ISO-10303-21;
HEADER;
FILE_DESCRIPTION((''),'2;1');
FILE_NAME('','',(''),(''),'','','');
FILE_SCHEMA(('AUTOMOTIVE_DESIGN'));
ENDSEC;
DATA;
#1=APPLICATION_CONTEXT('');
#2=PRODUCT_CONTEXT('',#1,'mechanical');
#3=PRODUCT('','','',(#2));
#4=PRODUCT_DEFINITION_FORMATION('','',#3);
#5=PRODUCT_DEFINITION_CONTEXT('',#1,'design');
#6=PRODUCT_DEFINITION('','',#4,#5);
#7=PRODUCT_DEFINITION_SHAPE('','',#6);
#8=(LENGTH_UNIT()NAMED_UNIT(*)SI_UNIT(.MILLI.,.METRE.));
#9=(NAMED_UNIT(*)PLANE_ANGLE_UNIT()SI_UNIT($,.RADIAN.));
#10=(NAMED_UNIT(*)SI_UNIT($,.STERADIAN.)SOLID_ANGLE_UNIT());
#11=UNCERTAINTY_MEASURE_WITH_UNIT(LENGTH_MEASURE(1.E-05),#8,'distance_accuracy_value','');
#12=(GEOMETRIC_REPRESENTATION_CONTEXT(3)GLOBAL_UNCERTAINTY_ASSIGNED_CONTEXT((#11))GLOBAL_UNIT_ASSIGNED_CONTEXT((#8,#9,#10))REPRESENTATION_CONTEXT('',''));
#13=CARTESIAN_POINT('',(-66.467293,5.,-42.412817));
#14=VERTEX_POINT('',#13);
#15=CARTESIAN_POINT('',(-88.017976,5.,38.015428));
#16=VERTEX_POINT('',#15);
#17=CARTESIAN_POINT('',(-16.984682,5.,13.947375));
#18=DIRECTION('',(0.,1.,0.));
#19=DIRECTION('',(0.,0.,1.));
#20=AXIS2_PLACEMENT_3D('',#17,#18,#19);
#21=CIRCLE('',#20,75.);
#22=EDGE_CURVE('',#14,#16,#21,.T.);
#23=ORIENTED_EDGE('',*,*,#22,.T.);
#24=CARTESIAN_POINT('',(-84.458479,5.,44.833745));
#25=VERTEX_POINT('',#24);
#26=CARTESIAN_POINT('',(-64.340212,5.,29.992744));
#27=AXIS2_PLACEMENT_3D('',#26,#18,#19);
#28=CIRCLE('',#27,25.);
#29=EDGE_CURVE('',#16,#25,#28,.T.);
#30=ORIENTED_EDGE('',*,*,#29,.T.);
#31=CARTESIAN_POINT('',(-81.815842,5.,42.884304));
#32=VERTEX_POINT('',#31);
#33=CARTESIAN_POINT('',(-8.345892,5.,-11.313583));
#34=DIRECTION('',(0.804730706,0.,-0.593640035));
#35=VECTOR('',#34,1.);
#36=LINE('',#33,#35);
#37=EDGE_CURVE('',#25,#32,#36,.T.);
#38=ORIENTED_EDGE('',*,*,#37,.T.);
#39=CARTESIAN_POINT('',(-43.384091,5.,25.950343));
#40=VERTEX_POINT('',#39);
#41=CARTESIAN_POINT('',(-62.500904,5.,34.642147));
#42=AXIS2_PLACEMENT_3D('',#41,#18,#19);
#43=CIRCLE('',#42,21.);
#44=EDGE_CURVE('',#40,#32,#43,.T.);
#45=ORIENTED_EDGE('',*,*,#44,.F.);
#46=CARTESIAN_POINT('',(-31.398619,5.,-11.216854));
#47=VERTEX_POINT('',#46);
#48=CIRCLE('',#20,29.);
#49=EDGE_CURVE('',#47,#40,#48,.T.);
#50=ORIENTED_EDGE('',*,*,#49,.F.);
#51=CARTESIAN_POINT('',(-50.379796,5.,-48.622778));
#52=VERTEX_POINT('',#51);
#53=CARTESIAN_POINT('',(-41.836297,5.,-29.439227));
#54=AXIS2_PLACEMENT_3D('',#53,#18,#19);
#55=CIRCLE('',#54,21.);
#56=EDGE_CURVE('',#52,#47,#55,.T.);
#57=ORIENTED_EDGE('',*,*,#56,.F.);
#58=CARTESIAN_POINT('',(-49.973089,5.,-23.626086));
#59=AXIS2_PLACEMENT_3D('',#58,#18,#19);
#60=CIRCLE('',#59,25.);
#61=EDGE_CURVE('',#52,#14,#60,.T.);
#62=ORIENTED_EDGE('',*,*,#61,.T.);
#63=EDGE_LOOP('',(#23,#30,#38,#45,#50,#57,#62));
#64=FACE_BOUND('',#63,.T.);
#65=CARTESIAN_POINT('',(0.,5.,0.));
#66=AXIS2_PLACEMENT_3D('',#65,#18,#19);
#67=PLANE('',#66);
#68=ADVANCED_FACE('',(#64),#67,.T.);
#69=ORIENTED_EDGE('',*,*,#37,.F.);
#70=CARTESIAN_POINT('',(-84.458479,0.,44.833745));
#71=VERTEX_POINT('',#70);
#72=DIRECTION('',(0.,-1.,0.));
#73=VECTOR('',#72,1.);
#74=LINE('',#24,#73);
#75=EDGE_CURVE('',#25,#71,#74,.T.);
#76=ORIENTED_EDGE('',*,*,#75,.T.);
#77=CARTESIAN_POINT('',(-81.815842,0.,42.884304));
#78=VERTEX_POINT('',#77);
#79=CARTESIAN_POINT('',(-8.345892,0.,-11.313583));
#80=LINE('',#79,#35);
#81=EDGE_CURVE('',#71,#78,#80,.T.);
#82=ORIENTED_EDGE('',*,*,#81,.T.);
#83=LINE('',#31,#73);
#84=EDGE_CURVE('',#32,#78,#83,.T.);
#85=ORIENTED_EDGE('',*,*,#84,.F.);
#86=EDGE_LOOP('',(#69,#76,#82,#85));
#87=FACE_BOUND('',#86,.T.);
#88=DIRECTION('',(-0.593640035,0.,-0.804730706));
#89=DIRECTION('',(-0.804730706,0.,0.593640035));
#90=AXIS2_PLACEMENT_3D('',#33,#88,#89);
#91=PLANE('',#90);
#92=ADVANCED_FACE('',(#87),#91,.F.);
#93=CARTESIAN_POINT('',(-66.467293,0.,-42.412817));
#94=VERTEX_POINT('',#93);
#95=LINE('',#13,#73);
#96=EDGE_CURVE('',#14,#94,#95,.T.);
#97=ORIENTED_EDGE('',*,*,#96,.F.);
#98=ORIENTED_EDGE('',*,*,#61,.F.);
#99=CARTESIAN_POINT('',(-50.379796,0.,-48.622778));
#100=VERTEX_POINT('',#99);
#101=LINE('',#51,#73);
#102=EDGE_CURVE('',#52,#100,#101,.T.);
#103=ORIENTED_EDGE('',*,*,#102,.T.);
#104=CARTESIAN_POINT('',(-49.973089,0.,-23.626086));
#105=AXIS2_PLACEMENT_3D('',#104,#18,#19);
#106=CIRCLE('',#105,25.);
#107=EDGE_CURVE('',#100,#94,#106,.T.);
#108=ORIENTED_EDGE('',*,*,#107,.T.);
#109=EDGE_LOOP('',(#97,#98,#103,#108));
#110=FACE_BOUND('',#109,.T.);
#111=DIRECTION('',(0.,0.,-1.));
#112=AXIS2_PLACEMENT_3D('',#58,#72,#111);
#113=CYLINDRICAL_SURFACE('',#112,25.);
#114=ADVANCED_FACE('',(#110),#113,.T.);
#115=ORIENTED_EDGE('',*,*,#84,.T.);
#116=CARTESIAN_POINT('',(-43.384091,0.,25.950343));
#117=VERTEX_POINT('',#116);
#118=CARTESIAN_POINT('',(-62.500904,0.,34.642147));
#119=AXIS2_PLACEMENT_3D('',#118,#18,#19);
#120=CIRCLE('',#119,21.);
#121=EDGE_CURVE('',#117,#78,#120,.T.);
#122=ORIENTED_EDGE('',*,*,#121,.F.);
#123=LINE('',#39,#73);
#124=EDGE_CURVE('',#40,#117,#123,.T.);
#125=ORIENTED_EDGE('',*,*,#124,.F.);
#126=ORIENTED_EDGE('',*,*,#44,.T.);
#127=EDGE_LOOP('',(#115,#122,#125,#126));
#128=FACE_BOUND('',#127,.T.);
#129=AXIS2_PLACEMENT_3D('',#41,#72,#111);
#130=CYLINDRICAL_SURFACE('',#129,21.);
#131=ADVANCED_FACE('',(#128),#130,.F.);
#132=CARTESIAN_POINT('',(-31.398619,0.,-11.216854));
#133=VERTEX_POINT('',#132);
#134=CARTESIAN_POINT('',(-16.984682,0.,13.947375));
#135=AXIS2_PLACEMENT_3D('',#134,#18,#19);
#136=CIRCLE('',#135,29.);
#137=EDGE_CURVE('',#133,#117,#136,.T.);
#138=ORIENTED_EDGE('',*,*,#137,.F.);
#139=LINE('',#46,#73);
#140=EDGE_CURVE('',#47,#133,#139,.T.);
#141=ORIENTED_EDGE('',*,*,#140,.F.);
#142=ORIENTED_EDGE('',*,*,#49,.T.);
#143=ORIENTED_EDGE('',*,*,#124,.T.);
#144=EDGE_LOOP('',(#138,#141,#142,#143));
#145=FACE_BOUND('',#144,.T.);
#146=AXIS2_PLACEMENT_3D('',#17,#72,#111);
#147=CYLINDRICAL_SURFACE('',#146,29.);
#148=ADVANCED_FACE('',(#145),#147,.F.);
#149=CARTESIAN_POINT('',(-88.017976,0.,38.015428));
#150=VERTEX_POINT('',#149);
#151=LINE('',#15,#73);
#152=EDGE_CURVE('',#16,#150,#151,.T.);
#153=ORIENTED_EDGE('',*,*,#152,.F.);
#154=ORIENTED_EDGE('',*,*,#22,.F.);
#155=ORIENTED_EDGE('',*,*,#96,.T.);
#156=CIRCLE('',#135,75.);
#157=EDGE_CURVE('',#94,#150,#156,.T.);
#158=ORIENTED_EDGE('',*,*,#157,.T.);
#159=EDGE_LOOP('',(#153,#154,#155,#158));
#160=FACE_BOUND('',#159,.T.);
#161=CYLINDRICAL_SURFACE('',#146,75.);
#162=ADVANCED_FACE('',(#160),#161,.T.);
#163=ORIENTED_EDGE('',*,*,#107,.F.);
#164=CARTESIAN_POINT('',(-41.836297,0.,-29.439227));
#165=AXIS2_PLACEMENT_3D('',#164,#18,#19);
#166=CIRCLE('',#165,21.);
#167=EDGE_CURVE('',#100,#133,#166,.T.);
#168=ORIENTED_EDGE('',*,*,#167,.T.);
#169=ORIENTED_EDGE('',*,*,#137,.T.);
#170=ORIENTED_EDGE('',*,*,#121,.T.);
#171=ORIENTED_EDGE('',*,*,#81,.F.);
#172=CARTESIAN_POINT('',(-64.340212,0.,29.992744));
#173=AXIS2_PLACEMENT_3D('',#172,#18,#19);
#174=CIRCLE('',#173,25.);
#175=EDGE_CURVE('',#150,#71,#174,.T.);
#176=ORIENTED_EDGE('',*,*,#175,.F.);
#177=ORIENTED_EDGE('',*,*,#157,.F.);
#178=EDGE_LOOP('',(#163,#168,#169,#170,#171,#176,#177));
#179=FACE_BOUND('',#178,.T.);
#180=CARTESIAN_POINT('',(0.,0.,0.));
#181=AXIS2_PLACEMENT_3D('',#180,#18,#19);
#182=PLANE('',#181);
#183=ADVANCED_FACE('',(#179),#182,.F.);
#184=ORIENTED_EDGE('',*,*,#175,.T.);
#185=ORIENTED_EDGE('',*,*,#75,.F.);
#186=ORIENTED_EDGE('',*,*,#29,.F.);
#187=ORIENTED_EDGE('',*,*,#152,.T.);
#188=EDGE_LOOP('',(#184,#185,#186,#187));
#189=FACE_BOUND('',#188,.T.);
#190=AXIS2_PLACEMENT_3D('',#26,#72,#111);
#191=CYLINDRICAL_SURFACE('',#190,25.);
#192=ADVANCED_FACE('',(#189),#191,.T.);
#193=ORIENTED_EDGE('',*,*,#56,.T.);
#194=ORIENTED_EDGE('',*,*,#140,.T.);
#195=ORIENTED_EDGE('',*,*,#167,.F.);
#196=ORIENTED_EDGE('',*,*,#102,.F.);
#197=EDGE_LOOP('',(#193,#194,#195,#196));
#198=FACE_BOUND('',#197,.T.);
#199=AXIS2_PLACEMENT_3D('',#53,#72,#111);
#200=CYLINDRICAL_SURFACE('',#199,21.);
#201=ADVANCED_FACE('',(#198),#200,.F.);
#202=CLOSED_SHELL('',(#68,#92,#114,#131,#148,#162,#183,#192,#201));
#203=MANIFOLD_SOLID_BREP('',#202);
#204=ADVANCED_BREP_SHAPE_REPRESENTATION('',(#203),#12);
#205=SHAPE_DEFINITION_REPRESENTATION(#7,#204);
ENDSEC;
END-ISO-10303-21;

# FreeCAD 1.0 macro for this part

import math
import FreeCAD as App
import Part
import Sketcher

V = App.Vector

doc = App.newDocument("Part")
body = doc.addObject("PartDesign::Body", "Body")

# Sketch on XZ plane
sketch1 = body.newObject("Sketcher::SketchObject", "Sketch")
sketch1.AttachmentSupport = (doc.getObject("XZ_Plane"), [""])
sketch1.MapMode = "FlatFace"
sketch1.addGeometry([
    Part.ArcOfCircle(Part.Circle(V(-64.340212, 29.992744, 0), V(0, 0, 1), 25), math.radians(143.584256), math.radians(161.282192)),  # 0
    Part.LineSegment(V(-84.458479, 44.833745, 0), V(-81.815842, 42.884304, 0)),  # 1
    Part.ArcOfCircle(Part.Circle(V(-62.500904, 34.642147, 0), V(0, 0, 1), 21), math.radians(156.890871), math.radians(335.550224)),  # 2
    Part.ArcOfCircle(Part.Circle(V(-16.984682, 13.947375, 0), V(0, 0, 1), 29), math.radians(155.550224), math.radians(240.196149)),  # 3
    Part.ArcOfCircle(Part.Circle(V(-41.836297, -29.439227, 0), V(0, 0, 1), 21), math.radians(60.196149), math.radians(245.993937)),  # 4
    Part.ArcOfCircle(Part.Circle(V(-49.973089, -23.626086, 0), V(0, 0, 1), 25), math.radians(-131.282192), math.radians(-90.932145)),  # 5
    Part.ArcOfCircle(Part.Circle(V(-16.984682, 13.947375, 0), V(0, 0, 1), 75), math.radians(161.282192), math.radians(228.717808)),  # 6
], False)
sketch1.addConstraint([
    Sketcher.Constraint("Coincident", 0, 1, 1, 1),
    Sketcher.Constraint("Coincident", 1, 2, 2, 1),
    Sketcher.Constraint("Coincident", 2, 2, 3, 1),
    Sketcher.Constraint("Coincident", 3, 2, 4, 1),
    Sketcher.Constraint("Coincident", 4, 2, 5, 2),
    Sketcher.Constraint("Coincident", 5, 1, 6, 2),
    Sketcher.Constraint("Coincident", 6, 1, 0, 2),
    Sketcher.Constraint("Coincident", 6, 3, 3, 3),
    Sketcher.Constraint("Radius", 0, 25.0),
    Sketcher.Constraint("Radius", 2, 21.0),
    Sketcher.Constraint("Radius", 3, 29.0),
    Sketcher.Constraint("Radius", 4, 21.0),
    Sketcher.Constraint("Radius", 5, 25.0),
    Sketcher.Constraint("Radius", 6, 75.0),
    Sketcher.Constraint("DistanceY", 0, 3, 0, 1, 14.841001),
    Sketcher.Constraint("DistanceY", 2, 2, 0, 3, 4.042401),
    Sketcher.Constraint("DistanceX", 4, 2, 4, 3, 8.543499),
    Sketcher.Constraint("DistanceX", 5, 1, 2, 2, 23.083202),
    Sketcher.Constraint("DistanceX", 0, 3, -1, 1, 64.340212),
    Sketcher.Constraint("DistanceX", 5, 3, -1, 1, 49.973089),
    Sketcher.Constraint("DistanceX", 2, 2, -1, 1, 43.384091),
    Sketcher.Constraint("DistanceX", 3, 2, -1, 1, 31.398619),
    Sketcher.Constraint("DistanceY", -1, 1, 6, 1, 38.015428),
    Sketcher.Constraint("DistanceX", 2, 3, 3, 3, 45.516222),
    Sketcher.Constraint("DistanceY", 1, 2, 0, 1, 1.949441),
    Sketcher.Constraint("DistanceY", 2, 3, 6, 1, 3.373281),
])
pad1 = body.newObject("PartDesign::Pad", "Pad")
pad1.Profile = sketch1
pad1.Length = 5
pad1.Reversed = True

doc.recompute()
